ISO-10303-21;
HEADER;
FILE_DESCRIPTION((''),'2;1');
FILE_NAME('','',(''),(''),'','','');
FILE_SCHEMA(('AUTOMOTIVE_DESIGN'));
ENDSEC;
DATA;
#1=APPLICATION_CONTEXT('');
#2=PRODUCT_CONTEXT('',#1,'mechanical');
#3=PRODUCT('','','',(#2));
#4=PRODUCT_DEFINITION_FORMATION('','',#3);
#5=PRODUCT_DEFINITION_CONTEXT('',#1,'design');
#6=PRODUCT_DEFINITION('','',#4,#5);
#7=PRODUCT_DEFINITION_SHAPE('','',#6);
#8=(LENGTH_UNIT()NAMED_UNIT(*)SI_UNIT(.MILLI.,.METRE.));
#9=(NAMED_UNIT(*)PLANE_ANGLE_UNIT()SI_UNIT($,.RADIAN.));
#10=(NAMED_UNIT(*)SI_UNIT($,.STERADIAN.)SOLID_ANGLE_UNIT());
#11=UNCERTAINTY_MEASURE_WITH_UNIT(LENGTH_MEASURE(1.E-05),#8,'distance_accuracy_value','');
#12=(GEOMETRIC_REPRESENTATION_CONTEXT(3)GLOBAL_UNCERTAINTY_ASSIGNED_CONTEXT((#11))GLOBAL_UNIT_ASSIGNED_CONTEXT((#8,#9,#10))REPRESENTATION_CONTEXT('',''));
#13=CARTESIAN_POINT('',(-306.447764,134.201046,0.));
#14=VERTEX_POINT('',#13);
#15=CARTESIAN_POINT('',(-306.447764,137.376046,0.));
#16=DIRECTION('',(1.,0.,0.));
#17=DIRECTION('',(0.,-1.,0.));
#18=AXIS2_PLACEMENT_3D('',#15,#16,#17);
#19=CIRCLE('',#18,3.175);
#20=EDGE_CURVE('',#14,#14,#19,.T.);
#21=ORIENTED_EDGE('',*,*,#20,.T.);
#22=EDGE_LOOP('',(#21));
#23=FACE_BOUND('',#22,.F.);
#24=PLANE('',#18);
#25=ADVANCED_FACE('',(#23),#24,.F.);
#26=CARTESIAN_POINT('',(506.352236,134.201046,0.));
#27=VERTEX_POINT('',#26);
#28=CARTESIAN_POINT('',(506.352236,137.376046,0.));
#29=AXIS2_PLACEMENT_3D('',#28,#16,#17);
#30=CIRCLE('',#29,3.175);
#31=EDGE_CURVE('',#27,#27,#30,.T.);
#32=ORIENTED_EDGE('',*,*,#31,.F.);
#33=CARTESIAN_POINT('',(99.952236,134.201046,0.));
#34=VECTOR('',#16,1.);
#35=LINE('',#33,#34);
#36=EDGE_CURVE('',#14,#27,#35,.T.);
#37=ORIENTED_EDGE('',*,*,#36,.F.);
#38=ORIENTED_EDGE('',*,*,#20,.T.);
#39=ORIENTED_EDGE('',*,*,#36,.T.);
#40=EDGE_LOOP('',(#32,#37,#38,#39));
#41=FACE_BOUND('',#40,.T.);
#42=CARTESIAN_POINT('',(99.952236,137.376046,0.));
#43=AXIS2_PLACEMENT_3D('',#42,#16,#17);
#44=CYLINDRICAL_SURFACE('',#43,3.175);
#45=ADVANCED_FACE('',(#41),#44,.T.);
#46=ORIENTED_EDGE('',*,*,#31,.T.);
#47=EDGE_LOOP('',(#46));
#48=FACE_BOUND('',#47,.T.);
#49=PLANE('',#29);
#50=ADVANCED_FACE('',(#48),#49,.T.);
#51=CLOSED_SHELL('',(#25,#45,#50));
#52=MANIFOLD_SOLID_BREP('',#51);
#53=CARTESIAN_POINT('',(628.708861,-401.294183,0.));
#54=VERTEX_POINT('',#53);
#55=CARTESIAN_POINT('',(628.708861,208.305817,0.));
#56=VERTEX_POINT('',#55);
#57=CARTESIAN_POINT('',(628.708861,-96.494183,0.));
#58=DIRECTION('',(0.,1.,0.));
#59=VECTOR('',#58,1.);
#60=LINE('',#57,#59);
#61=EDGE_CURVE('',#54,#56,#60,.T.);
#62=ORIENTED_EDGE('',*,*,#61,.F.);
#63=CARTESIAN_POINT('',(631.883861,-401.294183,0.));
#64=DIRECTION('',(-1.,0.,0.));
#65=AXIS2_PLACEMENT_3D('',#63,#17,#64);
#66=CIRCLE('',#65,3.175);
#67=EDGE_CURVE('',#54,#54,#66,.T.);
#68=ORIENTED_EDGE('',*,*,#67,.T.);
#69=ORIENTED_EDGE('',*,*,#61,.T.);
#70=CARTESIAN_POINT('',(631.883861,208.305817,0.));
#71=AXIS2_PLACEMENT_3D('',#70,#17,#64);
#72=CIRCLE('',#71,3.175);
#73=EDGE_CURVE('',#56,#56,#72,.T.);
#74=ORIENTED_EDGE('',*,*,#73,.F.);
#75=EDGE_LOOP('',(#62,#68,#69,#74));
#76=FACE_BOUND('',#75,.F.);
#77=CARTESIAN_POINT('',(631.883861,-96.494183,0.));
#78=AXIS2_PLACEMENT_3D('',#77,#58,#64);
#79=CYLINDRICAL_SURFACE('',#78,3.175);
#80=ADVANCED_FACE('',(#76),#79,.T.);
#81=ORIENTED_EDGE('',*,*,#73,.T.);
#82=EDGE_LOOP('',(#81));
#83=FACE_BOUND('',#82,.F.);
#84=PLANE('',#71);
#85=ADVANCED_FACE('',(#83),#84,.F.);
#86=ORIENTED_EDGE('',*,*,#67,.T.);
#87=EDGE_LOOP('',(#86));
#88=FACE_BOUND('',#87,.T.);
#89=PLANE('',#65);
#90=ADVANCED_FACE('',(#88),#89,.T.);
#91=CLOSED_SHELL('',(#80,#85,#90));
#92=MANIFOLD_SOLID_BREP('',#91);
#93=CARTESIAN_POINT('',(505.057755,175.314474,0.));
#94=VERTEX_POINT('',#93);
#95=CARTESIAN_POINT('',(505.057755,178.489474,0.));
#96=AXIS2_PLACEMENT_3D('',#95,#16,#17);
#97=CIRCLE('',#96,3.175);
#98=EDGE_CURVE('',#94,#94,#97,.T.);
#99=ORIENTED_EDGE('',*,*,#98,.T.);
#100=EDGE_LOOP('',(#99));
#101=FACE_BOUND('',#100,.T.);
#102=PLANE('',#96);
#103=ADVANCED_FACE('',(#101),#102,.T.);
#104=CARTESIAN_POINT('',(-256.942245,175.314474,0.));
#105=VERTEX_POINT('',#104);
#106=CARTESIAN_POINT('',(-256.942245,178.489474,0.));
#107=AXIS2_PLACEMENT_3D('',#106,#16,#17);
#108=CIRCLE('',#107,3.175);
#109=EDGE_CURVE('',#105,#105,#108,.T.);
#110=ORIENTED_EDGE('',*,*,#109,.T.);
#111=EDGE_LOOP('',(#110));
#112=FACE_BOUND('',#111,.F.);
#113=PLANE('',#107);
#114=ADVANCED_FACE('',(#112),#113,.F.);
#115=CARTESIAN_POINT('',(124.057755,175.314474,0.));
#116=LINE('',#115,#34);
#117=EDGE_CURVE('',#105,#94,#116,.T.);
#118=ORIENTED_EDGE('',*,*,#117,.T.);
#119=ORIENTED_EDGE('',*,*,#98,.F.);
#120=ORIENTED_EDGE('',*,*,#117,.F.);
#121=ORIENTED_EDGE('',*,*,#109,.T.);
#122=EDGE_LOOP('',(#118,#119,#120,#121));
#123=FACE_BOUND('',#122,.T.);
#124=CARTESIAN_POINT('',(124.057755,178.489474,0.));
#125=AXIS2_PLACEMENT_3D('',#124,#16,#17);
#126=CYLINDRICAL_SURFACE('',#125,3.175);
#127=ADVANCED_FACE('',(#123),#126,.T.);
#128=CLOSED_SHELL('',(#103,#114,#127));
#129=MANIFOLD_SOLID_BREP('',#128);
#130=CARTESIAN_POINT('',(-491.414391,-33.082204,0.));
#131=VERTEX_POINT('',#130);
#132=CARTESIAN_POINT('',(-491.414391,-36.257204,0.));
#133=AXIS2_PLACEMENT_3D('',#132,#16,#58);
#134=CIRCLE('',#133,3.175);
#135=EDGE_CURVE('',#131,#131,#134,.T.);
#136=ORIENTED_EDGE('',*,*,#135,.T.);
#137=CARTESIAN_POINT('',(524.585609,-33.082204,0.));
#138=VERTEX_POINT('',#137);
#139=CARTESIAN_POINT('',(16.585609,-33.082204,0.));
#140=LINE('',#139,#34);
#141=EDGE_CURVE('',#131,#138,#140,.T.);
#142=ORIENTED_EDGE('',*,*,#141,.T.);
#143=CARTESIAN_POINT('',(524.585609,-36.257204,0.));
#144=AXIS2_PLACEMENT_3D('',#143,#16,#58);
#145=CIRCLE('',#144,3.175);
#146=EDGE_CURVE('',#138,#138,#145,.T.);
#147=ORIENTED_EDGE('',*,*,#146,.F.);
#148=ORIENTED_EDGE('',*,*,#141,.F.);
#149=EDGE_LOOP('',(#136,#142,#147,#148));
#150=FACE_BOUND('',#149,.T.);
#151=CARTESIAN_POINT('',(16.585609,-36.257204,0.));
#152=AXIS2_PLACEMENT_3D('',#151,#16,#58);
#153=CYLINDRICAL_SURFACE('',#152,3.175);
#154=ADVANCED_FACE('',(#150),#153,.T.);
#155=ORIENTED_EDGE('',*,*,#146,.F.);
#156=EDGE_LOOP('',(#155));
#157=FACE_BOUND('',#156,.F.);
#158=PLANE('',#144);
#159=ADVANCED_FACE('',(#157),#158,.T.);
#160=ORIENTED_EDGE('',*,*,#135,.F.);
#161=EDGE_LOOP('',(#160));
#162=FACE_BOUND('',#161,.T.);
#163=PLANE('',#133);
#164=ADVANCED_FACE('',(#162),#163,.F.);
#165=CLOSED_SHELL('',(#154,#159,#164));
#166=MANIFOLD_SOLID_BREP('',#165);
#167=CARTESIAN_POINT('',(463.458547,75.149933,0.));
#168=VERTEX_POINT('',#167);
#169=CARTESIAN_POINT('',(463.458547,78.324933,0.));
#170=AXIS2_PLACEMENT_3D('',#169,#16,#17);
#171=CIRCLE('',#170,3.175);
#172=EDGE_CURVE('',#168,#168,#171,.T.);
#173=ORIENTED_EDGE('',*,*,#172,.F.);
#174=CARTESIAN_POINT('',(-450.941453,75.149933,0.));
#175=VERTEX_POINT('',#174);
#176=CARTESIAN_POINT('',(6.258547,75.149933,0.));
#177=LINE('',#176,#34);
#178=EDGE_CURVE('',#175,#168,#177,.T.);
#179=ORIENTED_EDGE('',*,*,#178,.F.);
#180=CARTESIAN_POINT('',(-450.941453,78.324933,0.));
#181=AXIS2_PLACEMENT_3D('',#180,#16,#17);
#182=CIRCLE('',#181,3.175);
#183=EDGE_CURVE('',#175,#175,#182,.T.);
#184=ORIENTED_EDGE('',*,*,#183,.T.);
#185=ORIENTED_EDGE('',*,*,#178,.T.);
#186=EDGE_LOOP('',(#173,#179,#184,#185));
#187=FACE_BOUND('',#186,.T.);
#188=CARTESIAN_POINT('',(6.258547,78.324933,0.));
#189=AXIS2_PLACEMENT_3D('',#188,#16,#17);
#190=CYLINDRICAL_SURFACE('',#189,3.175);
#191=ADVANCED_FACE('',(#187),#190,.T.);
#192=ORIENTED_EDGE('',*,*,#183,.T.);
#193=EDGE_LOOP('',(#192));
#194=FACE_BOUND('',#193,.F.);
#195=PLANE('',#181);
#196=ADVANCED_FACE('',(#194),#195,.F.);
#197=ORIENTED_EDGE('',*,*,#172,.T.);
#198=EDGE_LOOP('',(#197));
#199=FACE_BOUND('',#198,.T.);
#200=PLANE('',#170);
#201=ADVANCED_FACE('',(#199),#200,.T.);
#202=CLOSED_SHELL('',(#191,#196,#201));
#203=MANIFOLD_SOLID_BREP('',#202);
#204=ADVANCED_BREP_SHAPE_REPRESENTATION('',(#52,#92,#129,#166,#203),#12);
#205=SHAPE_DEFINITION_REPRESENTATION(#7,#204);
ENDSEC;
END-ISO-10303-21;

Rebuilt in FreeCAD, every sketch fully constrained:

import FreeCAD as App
import Part
import Sketcher
Q = App.Units.Quantity

doc = App.newDocument("Part")
params = doc.addObject("Spreadsheet::Sheet", "Params")
for row, (alias, value) in enumerate([
    ("sketch1_width", "40 in"),
    ("sketch1_height", "0.125 in"),
    ("revolution_angle", "360 deg"),
    ("sketch2_width", "36 in"),
    ("sketch2_height", "0.125 in"),
    ("revolution2_angle", "360 deg"),
    ("sketch3_width", "32 in"),
    ("sketch3_height", "0.125 in"),
    ("revolution3_angle", "360 deg"),
    ("sketch4_width", "30 in"),
    ("sketch4_height", "0.125 in"),
    ("revolution4_angle", "360 deg"),
    ("sketch5_height", "24 in"),
    ("sketch5_width", "0.125 in"),
    ("revolution5_angle", "360 deg"),
    ("sketch6_height", "36 in"),
    ("sketch6_width", "0.125 in"),
    ("revolution6_angle", "360 deg"),
], start=1):
    params.set(f"A{row}", alias)
    params.set(f"B{row}", "=" + value)
    params.setAlias(f"B{row}", alias)

body = doc.addObject("PartDesign::Body", "Body")

sketch1 = doc.addObject("Sketcher::SketchObject", "Sketch")
body.addObject(sketch1)
sketch1.AttachmentSupport = (doc.XY_Plane, [""])
sketch1.MapMode = "FlatFace"
sketch1.addGeometry([
    Part.LineSegment(App.Vector(-491.4, -33.1, 0), App.Vector(-491.4, -36.3, 0)),
    Part.LineSegment(App.Vector(-491.4, -36.3, 0), App.Vector(524.6, -36.3, 0)),
    Part.LineSegment(App.Vector(524.6, -36.3, 0), App.Vector(524.6, -33.1, 0)),
    Part.LineSegment(App.Vector(524.6, -33.1, 0), App.Vector(-491.4, -33.1, 0)),
], False)
sketch1.addGeometry(Part.LineSegment(App.Vector(-491.4, -36.3, 0), App.Vector(524.6, -36.3, 0)), True)
sketch1.addConstraint([
    Sketcher.Constraint("Coincident", 0, 2, 1, 1),
    Sketcher.Constraint("Coincident", 1, 2, 2, 1),
    Sketcher.Constraint("Coincident", 2, 2, 3, 1),
    Sketcher.Constraint("Coincident", 3, 2, 0, 1),
    Sketcher.Constraint("Vertical", 0),
    Sketcher.Constraint("Horizontal", 1),
    Sketcher.Constraint("Vertical", 2),
    Sketcher.Constraint("Horizontal", 3),
    Sketcher.Constraint("Horizontal", 4),
    Sketcher.Constraint("Coincident", 4, 1, 0, 2),
    Sketcher.Constraint("Vertical", 2, 2, 4, 2),
    Sketcher.Constraint("DistanceX", 1, 1, 1, 2, Q("40 in")),
    Sketcher.Constraint("DistanceY", 0, 2, 0, 1, Q("0.125 in")),
    Sketcher.Constraint("DistanceX", 0, 2, -1, 1, 491.414391),
    Sketcher.Constraint("DistanceY", 0, 2, -1, 1, 36.257204),
])
sketch1.setExpression("Constraints[11]", "Params.sketch1_width")
sketch1.setExpression("Constraints[12]", "Params.sketch1_height")
revolution = doc.addObject("PartDesign::Revolution", "Revolution")
body.addObject(revolution)
revolution.Profile = sketch1
revolution.ReferenceAxis = (sketch1, ["Axis0"])
revolution.setExpression("Angle", "Params.revolution_angle")
body2 = doc.addObject("PartDesign::Body", "Body001")

sketch2 = doc.addObject("Sketcher::SketchObject", "Sketch001")
body2.addObject(sketch2)
sketch2.AttachmentSupport = (doc.getObject("XY_Plane001"), [""])
sketch2.MapMode = "FlatFace"
sketch2.addGeometry([
    Part.LineSegment(App.Vector(-450.9, 78.3, 0), App.Vector(-450.9, 75.1, 0)),
    Part.LineSegment(App.Vector(-450.9, 75.1, 0), App.Vector(463.5, 75.1, 0)),
    Part.LineSegment(App.Vector(463.5, 75.1, 0), App.Vector(463.5, 78.3, 0)),
    Part.LineSegment(App.Vector(463.5, 78.3, 0), App.Vector(-450.9, 78.3, 0)),
], False)
sketch2.addGeometry(Part.LineSegment(App.Vector(-450.9, 78.3, 0), App.Vector(463.5, 78.3, 0)), True)
sketch2.addConstraint([
    Sketcher.Constraint("Coincident", 0, 2, 1, 1),
    Sketcher.Constraint("Coincident", 1, 2, 2, 1),
    Sketcher.Constraint("Coincident", 2, 2, 3, 1),
    Sketcher.Constraint("Coincident", 3, 2, 0, 1),
    Sketcher.Constraint("Vertical", 0),
    Sketcher.Constraint("Horizontal", 1),
    Sketcher.Constraint("Vertical", 2),
    Sketcher.Constraint("Horizontal", 3),
    Sketcher.Constraint("Horizontal", 4),
    Sketcher.Constraint("Coincident", 4, 1, 3, 2),
    Sketcher.Constraint("Vertical", 1, 2, 4, 2),
    Sketcher.Constraint("DistanceX", 1, 1, 1, 2, Q("36 in")),
    Sketcher.Constraint("DistanceY", 0, 2, 0, 1, Q("0.125 in")),
    Sketcher.Constraint("DistanceX", 0, 2, -1, 1, 450.941453),
    Sketcher.Constraint("DistanceY", -1, 1, 0, 2, 75.149933),
])
sketch2.setExpression("Constraints[11]", "Params.sketch2_width")
sketch2.setExpression("Constraints[12]", "Params.sketch2_height")
revolution2 = doc.addObject("PartDesign::Revolution", "Revolution001")
body2.addObject(revolution2)
revolution2.Profile = sketch2
revolution2.ReferenceAxis = (sketch2, ["Axis0"])
revolution2.setExpression("Angle", "Params.revolution2_angle")
body3 = doc.addObject("PartDesign::Body", "Body002")

sketch3 = doc.addObject("Sketcher::SketchObject", "Sketch002")
body3.addObject(sketch3)
sketch3.AttachmentSupport = (doc.getObject("XY_Plane002"), [""])
sketch3.MapMode = "FlatFace"
sketch3.addGeometry([
    Part.LineSegment(App.Vector(-306.4, 137.4, 0), App.Vector(-306.4, 134.2, 0)),
    Part.LineSegment(App.Vector(-306.4, 134.2, 0), App.Vector(506.4, 134.2, 0)),
    Part.LineSegment(App.Vector(506.4, 134.2, 0), App.Vector(506.4, 137.4, 0)),
    Part.LineSegment(App.Vector(506.4, 137.4, 0), App.Vector(-306.4, 137.4, 0)),
], False)
sketch3.addGeometry(Part.LineSegment(App.Vector(-306.4, 137.4, 0), App.Vector(506.4, 137.4, 0)), True)
sketch3.addConstraint([
    Sketcher.Constraint("Coincident", 0, 2, 1, 1),
    Sketcher.Constraint("Coincident", 1, 2, 2, 1),
    Sketcher.Constraint("Coincident", 2, 2, 3, 1),
    Sketcher.Constraint("Coincident", 3, 2, 0, 1),
    Sketcher.Constraint("Vertical", 0),
    Sketcher.Constraint("Horizontal", 1),
    Sketcher.Constraint("Vertical", 2),
    Sketcher.Constraint("Horizontal", 3),
    Sketcher.Constraint("Horizontal", 4),
    Sketcher.Constraint("Coincident", 4, 1, 3, 2),
    Sketcher.Constraint("Vertical", 1, 2, 4, 2),
    Sketcher.Constraint("DistanceX", 1, 1, 1, 2, Q("32 in")),
    Sketcher.Constraint("DistanceY", 0, 2, 0, 1, Q("0.125 in")),
    Sketcher.Constraint("DistanceX", 0, 2, -1, 1, 306.447764),
    Sketcher.Constraint("DistanceY", -1, 1, 0, 2, 134.201046),
])
sketch3.setExpression("Constraints[11]", "Params.sketch3_width")
sketch3.setExpression("Constraints[12]", "Params.sketch3_height")
revolution3 = doc.addObject("PartDesign::Revolution", "Revolution002")
body3.addObject(revolution3)
revolution3.Profile = sketch3
revolution3.ReferenceAxis = (sketch3, ["Axis0"])
revolution3.setExpression("Angle", "Params.revolution3_angle")
body4 = doc.addObject("PartDesign::Body", "Body003")

sketch4 = doc.addObject("Sketcher::SketchObject", "Sketch003")
body4.addObject(sketch4)
sketch4.AttachmentSupport = (doc.getObject("XY_Plane003"), [""])
sketch4.MapMode = "FlatFace"
sketch4.addGeometry([
    Part.LineSegment(App.Vector(-256.9, 178.5, 0), App.Vector(-256.9, 175.3, 0)),
    Part.LineSegment(App.Vector(-256.9, 175.3, 0), App.Vector(505.1, 175.3, 0)),
    Part.LineSegment(App.Vector(505.1, 175.3, 0), App.Vector(505.1, 178.5, 0)),
    Part.LineSegment(App.Vector(505.1, 178.5, 0), App.Vector(-256.9, 178.5, 0)),
], False)
sketch4.addGeometry(Part.LineSegment(App.Vector(-256.9, 178.5, 0), App.Vector(505.1, 178.5, 0)), True)
sketch4.addConstraint([
    Sketcher.Constraint("Coincident", 0, 2, 1, 1),
    Sketcher.Constraint("Coincident", 1, 2, 2, 1),
    Sketcher.Constraint("Coincident", 2, 2, 3, 1),
    Sketcher.Constraint("Coincident", 3, 2, 0, 1),
    Sketcher.Constraint("Vertical", 0),
    Sketcher.Constraint("Horizontal", 1),
    Sketcher.Constraint("Vertical", 2),
    Sketcher.Constraint("Horizontal", 3),
    Sketcher.Constraint("Horizontal", 4),
    Sketcher.Constraint("Coincident", 4, 1, 3, 2),
    Sketcher.Constraint("Vertical", 1, 2, 4, 2),
    Sketcher.Constraint("DistanceX", 1, 1, 1, 2, Q("30 in")),
    Sketcher.Constraint("DistanceY", 0, 2, 0, 1, Q("0.125 in")),
    Sketcher.Constraint("DistanceX", 0, 2, -1, 1, 256.942245),
    Sketcher.Constraint("DistanceY", -1, 1, 0, 2, 175.314474),
])
sketch4.setExpression("Constraints[11]", "Params.sketch4_width")
sketch4.setExpression("Constraints[12]", "Params.sketch4_height")
revolution4 = doc.addObject("PartDesign::Revolution", "Revolution003")
body4.addObject(revolution4)
revolution4.Profile = sketch4
revolution4.ReferenceAxis = (sketch4, ["Axis0"])
revolution4.setExpression("Angle", "Params.revolution4_angle")
body5 = doc.addObject("PartDesign::Body", "Body004")

sketch5 = doc.addObject("Sketcher::SketchObject", "Sketch004")
body5.addObject(sketch5)
sketch5.AttachmentSupport = (doc.getObject("XY_Plane004"), [""])
sketch5.MapMode = "FlatFace"
sketch5.addGeometry([
    Part.LineSegment(App.Vector(628.7, 208.3, 0), App.Vector(628.7, -401.3, 0)),
    Part.LineSegment(App.Vector(628.7, -401.3, 0), App.Vector(631.9, -401.3, 0)),
    Part.LineSegment(App.Vector(631.9, -401.3, 0), App.Vector(631.9, 208.3, 0)),
    Part.LineSegment(App.Vector(631.9, 208.3, 0), App.Vector(628.7, 208.3, 0)),
], False)
sketch5.addGeometry(Part.LineSegment(App.Vector(631.9, 208.3, 0), App.Vector(631.9, -401.3, 0)), True)
sketch5.addConstraint([
    Sketcher.Constraint("Coincident", 0, 2, 1, 1),
    Sketcher.Constraint("Coincident", 1, 2, 2, 1),
    Sketcher.Constraint("Coincident", 2, 2, 3, 1),
    Sketcher.Constraint("Coincident", 3, 2, 0, 1),
    Sketcher.Constraint("Vertical", 0),
    Sketcher.Constraint("Horizontal", 1),
    Sketcher.Constraint("Vertical", 2),
    Sketcher.Constraint("Horizontal", 3),
    Sketcher.Constraint("Vertical", 4),
    Sketcher.Constraint("Coincident", 4, 1, 2, 2),
    Sketcher.Constraint("Horizontal", 0, 2, 4, 2),
    Sketcher.Constraint("DistanceY", 0, 2, 0, 1, Q("24 in")),
    Sketcher.Constraint("DistanceX", 1, 1, 1, 2, Q("0.125 in")),
    Sketcher.Constraint("DistanceX", -1, 1, 0, 2, 628.708861),
    Sketcher.Constraint("DistanceY", 0, 2, -1, 1, 401.294183),
])
sketch5.setExpression("Constraints[11]", "Params.sketch5_height")
sketch5.setExpression("Constraints[12]", "Params.sketch5_width")
revolution5 = doc.addObject("PartDesign::Revolution", "Revolution004")
body5.addObject(revolution5)
revolution5.Profile = sketch5
revolution5.ReferenceAxis = (sketch5, ["Axis0"])
revolution5.setExpression("Angle", "Params.revolution5_angle")
body6 = doc.addObject("PartDesign::Body", "Body005")

sketch6 = doc.addObject("Sketcher::SketchObject", "Sketch005")
body6.addObject(sketch6)
sketch6.AttachmentSupport = (doc.getObject("XY_Plane005"), [""])
sketch6.MapMode = "FlatFace"
sketch6.addGeometry([
    Part.LineSegment(App.Vector(710.2, 388.6, 0), App.Vector(710.2, -525.8, 0)),
    Part.LineSegment(App.Vector(710.2, -525.8, 0), App.Vector(713.4, -525.8, 0)),
    Part.LineSegment(App.Vector(713.4, -525.8, 0), App.Vector(713.4, 388.6, 0)),
    Part.LineSegment(App.Vector(713.4, 388.6, 0), App.Vector(710.2, 388.6, 0)),
], False)
sketch6.addGeometry(Part.LineSegment(App.Vector(713.4, 388.6, 0), App.Vector(713.4, -525.8, 0)), True)
sketch6.addConstraint([
    Sketcher.Constraint("Coincident", 0, 2, 1, 1),
    Sketcher.Constraint("Coincident", 1, 2, 2, 1),
    Sketcher.Constraint("Coincident", 2, 2, 3, 1),
    Sketcher.Constraint("Coincident", 3, 2, 0, 1),
    Sketcher.Constraint("Vertical", 0),
    Sketcher.Constraint("Horizontal", 1),
    Sketcher.Constraint("Vertical", 2),
    Sketcher.Constraint("Horizontal", 3),
    Sketcher.Constraint("Vertical", 4),
    Sketcher.Constraint("Coincident", 4, 1, 2, 2),
    Sketcher.Constraint("Horizontal", 0, 2, 4, 2),
    Sketcher.Constraint("DistanceY", 0, 2, 0, 1, Q("36 in")),
    Sketcher.Constraint("DistanceX", 1, 1, 1, 2, Q("0.125 in")),
    Sketcher.Constraint("DistanceY", 0, 2, -1, 1, 525.818268),
    Sketcher.Constraint("DistanceX", -1, 1, 0, 2, 710.220565),
])
sketch6.setExpression("Constraints[11]", "Params.sketch6_height")
sketch6.setExpression("Constraints[12]", "Params.sketch6_width")
revolution6 = doc.addObject("PartDesign::Revolution", "Revolution005")
body6.addObject(revolution6)
revolution6.Profile = sketch6
revolution6.ReferenceAxis = (sketch6, ["Axis0"])
revolution6.setExpression("Angle", "Params.revolution6_angle")
body6.Visibility = False

doc.recompute()
